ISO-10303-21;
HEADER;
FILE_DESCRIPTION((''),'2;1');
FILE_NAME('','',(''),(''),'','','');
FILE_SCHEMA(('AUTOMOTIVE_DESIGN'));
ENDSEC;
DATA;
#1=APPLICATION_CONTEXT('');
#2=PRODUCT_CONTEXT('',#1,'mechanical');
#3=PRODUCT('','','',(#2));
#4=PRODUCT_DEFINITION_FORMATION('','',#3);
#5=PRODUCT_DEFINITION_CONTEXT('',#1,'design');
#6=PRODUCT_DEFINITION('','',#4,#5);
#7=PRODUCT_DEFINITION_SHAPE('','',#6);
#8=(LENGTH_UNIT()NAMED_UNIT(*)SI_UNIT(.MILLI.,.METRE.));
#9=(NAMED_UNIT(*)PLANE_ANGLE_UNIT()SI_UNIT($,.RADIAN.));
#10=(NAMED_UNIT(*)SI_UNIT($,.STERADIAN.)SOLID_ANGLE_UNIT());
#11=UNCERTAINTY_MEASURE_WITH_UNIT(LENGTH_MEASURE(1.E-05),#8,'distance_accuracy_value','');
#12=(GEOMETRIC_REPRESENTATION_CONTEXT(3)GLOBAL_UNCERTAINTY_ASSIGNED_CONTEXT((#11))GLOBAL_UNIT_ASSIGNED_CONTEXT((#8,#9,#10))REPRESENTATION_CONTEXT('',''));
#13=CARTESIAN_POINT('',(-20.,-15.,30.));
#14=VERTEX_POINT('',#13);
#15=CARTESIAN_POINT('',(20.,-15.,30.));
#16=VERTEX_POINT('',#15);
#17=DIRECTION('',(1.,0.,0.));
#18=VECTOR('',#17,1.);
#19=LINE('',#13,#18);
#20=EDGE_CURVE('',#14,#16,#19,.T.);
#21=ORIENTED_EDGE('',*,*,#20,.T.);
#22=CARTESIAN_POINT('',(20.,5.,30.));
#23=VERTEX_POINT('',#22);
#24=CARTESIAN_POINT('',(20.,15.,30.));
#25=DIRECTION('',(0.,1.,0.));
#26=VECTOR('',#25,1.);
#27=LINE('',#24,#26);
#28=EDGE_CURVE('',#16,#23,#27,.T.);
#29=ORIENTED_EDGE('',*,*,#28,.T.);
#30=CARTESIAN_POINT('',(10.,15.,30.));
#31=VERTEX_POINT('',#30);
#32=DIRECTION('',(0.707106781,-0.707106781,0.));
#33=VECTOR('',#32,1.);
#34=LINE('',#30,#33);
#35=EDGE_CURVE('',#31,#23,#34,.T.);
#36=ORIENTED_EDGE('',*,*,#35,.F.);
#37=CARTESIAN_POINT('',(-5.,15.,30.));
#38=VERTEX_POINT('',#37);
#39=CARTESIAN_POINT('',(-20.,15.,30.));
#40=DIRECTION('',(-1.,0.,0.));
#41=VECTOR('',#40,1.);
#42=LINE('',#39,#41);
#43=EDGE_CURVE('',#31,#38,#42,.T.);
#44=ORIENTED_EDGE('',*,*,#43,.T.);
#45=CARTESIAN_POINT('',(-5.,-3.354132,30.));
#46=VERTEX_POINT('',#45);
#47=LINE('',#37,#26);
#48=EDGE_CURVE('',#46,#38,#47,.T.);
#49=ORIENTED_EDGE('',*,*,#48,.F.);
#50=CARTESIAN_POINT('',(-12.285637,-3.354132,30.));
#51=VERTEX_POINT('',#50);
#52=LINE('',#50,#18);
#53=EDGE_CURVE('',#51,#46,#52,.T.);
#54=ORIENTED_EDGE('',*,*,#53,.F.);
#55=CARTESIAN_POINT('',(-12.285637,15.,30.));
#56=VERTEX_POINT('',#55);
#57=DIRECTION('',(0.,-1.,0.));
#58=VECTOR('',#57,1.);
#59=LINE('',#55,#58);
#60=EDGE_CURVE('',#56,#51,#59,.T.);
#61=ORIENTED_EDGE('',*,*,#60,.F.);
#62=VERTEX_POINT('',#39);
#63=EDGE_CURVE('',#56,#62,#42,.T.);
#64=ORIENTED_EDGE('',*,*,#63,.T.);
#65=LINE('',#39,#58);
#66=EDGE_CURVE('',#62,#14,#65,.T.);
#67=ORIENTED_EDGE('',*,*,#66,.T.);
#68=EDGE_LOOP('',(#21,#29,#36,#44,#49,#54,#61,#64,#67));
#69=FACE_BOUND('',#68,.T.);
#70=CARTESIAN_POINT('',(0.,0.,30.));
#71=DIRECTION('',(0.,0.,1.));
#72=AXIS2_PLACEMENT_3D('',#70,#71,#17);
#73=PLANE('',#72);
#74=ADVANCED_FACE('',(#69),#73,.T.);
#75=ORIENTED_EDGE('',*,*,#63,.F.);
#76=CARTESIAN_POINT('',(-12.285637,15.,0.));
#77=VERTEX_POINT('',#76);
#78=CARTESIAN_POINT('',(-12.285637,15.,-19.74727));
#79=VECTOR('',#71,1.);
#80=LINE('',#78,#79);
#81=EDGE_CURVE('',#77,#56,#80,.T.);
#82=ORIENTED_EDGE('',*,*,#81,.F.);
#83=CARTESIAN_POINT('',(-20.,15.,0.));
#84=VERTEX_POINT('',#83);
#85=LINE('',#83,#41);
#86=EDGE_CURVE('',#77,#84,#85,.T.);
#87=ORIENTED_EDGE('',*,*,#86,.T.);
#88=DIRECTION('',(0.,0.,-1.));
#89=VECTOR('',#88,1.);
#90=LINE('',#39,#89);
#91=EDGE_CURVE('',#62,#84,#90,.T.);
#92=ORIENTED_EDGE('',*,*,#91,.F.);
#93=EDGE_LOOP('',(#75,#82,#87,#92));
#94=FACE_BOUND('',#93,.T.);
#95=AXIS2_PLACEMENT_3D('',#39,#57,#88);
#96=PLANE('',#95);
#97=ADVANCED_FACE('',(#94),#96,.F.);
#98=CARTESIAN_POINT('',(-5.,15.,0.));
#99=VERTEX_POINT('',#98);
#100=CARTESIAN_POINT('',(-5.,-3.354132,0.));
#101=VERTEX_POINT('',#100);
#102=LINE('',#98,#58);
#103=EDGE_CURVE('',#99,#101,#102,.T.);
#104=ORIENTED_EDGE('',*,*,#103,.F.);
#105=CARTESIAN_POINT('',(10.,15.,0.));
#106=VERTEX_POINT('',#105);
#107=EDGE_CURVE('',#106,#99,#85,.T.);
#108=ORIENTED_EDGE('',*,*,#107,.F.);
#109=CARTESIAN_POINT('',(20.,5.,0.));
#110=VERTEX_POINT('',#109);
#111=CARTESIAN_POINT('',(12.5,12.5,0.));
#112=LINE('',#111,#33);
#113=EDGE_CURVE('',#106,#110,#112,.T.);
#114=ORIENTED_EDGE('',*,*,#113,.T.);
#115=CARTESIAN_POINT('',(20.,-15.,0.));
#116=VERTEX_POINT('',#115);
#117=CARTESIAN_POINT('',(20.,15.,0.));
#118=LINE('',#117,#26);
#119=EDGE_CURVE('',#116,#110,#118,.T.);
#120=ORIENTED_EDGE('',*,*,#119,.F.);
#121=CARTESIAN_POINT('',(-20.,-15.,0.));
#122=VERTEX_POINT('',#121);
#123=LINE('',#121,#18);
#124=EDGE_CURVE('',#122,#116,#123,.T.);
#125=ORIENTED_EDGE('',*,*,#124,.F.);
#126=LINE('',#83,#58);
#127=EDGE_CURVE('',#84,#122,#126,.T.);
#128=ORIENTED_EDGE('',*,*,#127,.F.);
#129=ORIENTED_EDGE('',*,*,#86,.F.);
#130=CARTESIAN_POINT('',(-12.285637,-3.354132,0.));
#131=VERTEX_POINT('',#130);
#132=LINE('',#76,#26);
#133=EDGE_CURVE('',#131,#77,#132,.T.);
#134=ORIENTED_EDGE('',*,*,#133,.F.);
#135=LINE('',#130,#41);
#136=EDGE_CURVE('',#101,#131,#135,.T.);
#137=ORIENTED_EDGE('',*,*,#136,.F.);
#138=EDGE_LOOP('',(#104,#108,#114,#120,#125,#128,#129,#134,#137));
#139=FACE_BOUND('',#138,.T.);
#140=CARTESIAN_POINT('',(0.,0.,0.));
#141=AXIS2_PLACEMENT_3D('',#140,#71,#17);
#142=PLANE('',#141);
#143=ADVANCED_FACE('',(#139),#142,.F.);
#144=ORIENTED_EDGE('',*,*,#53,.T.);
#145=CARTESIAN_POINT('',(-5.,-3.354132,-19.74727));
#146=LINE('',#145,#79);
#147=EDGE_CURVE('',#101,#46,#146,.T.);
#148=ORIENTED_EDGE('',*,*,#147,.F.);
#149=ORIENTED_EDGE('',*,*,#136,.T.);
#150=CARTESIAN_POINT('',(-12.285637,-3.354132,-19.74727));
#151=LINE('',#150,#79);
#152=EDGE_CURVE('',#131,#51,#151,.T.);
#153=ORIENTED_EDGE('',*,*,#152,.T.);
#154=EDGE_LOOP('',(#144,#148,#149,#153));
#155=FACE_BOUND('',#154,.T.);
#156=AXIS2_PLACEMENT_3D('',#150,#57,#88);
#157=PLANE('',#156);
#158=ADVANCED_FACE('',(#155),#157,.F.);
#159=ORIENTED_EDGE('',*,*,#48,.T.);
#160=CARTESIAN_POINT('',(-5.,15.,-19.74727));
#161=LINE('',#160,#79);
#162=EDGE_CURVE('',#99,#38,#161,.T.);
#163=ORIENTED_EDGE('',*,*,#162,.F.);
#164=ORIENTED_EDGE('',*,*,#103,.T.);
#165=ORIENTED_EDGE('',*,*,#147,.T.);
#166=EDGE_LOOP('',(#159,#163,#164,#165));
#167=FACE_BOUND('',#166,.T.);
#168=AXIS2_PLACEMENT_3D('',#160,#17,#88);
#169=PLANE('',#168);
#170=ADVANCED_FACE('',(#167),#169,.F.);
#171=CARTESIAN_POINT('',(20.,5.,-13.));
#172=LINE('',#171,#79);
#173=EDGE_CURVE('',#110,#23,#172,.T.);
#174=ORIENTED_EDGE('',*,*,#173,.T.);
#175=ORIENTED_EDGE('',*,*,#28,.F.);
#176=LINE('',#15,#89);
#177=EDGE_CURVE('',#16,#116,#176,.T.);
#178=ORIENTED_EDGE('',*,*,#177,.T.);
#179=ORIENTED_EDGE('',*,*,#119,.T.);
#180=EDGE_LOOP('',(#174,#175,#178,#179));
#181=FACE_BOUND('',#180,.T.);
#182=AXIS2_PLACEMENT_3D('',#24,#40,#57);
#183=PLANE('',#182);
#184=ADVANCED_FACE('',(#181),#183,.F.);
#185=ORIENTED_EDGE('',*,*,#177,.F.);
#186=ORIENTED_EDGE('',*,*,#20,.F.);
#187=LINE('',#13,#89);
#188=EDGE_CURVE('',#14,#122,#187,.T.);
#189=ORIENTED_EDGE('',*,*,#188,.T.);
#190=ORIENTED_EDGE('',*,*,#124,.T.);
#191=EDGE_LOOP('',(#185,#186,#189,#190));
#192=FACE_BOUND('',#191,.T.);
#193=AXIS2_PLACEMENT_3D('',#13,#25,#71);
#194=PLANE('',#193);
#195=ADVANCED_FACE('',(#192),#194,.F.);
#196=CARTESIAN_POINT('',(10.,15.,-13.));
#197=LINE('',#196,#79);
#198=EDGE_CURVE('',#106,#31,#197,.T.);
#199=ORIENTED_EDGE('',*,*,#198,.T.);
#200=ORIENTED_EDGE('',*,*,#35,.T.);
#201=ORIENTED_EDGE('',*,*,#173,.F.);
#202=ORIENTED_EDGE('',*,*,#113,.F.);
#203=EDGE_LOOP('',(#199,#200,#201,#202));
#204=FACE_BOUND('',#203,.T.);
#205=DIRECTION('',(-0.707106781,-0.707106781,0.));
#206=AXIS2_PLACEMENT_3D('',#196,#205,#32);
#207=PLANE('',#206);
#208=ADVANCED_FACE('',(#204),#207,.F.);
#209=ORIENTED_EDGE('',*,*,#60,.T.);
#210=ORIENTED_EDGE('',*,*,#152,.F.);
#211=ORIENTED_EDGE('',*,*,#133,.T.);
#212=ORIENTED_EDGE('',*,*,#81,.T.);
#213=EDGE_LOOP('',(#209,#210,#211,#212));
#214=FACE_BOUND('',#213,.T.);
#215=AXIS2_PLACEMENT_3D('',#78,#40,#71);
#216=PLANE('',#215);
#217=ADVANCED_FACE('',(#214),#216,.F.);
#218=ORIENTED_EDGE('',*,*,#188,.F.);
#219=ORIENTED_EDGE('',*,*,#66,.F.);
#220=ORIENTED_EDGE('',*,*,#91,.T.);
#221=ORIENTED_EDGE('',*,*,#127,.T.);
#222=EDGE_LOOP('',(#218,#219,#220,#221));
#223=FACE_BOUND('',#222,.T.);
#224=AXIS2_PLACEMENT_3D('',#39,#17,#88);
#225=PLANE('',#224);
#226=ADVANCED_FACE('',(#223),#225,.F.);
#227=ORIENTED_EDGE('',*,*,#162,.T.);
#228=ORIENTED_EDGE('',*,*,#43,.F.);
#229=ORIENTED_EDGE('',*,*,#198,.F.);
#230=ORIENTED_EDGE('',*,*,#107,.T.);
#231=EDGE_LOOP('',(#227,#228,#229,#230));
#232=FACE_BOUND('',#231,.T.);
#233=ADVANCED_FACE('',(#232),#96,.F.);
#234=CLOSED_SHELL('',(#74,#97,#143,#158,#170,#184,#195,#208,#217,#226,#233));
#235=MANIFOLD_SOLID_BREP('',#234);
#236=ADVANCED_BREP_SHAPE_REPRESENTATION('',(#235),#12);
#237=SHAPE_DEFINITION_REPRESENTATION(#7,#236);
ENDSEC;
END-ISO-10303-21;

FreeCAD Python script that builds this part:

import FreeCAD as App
import Part
import Sketcher

V = App.Vector

doc = App.newDocument("Part")
params = doc.addObject("Spreadsheet::Sheet", "Params")
for row, (alias, value) in enumerate([
    ("sketch1_width", "40 mm"),
    ("sketch1_height", "30 mm"),
    ("pad1_length", "30 mm"),
    ("sketch2_width", "10 mm"),
    ("pocket1_length", "43 mm"),
    ("pocket2_length", "30 mm"),
], start=1):
    params.set(f"A{row}", alias)
    params.set(f"B{row}", "=" + value)
    params.setAlias(f"B{row}", alias)

body = doc.addObject("PartDesign::Body", "Body")

sketch1 = body.newObject("Sketcher::SketchObject", "Sketch")
sketch1.AttachmentSupport = (doc.getObject("XY_Plane"), [""])
sketch1.MapMode = "FlatFace"
sketch1.addGeometry([
    Part.LineSegment(V(-20, 15, 0), V(-20, -15, 0)),
    Part.LineSegment(V(-20, -15, 0), V(20, -15, 0)),
    Part.LineSegment(V(20, -15, 0), V(20, 15, 0)),
    Part.LineSegment(V(20, 15, 0), V(-20, 15, 0)),
], False)
sketch1.addConstraint([
    Sketcher.Constraint("Coincident", 0, 2, 1, 1),
    Sketcher.Constraint("Coincident", 1, 2, 2, 1),
    Sketcher.Constraint("Coincident", 2, 2, 3, 1),
    Sketcher.Constraint("Coincident", 3, 2, 0, 1),
    Sketcher.Constraint("Vertical", 0),
    Sketcher.Constraint("Horizontal", 1),
    Sketcher.Constraint("Vertical", 2),
    Sketcher.Constraint("Horizontal", 3),
    Sketcher.Constraint("Symmetric", 0, 2, 2, 2, -1, 1),
    Sketcher.Constraint("DistanceX", 1, 1, 1, 2, 40.0),
    Sketcher.Constraint("DistanceY", 0, 2, 0, 1, 30.0),
])
sketch1.setExpression("Constraints[9]", "Params.sketch1_width")
sketch1.setExpression("Constraints[10]", "Params.sketch1_height")
pad1 = body.newObject("PartDesign::Pad", "Pad")
pad1.Profile = sketch1
pad1.setExpression("Length", "Params.pad1_length")

sketch2 = body.newObject("Sketcher::SketchObject", "Sketch001")
sketch2.AttachmentSupport = (doc.getObject("XY_Plane"), [""])
sketch2.MapMode = "FlatFace"
sketch2.AttachmentOffset = App.Placement(V(0, 0, 30), App.Rotation())
sketch2.addGeometry([
    Part.LineSegment(V(10, 15, 0), V(20, 5, 0)),
    Part.LineSegment(V(20, 5, 0), V(20, 15, 0)),
    Part.LineSegment(V(20, 15, 0), V(10, 15, 0)),
], False)
sketch2.addConstraint([
    Sketcher.Constraint("Coincident", 0, 2, 1, 1),
    Sketcher.Constraint("Coincident", 1, 2, 2, 1),
    Sketcher.Constraint("Coincident", 2, 2, 0, 1),
    Sketcher.Constraint("Vertical", 1),
    Sketcher.Constraint("Horizontal", 2),
    Sketcher.Constraint("Equal", 2, 1),
    Sketcher.Constraint("DistanceX", 2, 2, 2, 1, 10.0),
    Sketcher.Constraint("DistanceX", -1, 1, 0, 2, 20.0),
    Sketcher.Constraint("DistanceY", -1, 1, 0, 2, 5.0),
])
sketch2.setExpression("Constraints[6]", "Params.sketch2_width")
pocket1 = body.newObject("PartDesign::Pocket", "Pocket")
pocket1.Profile = sketch2
pocket1.setExpression("Length", "Params.pocket1_length")

sketch3 = body.newObject("Sketcher::SketchObject", "Sketch002")
sketch3.AttachmentSupport = (doc.getObject("XY_Plane"), [""])
sketch3.MapMode = "FlatFace"
sketch3.AttachmentOffset = App.Placement(V(0, 0, 30), App.Rotation())
sketch3.addGeometry([
    Part.LineSegment(V(-12.285637, 15, 0), V(-12.285637, -3.354132, 0)),
    Part.LineSegment(V(-12.285637, -3.354132, 0), V(-5, -3.354132, 0)),
    Part.LineSegment(V(-5, -3.354132, 0), V(-5, 15, 0)),
    Part.LineSegment(V(-5, 15, 0), V(-12.285637, 15, 0)),
], False)
sketch3.addConstraint([
    Sketcher.Constraint("Coincident", 0, 2, 1, 1),
    Sketcher.Constraint("Coincident", 1, 2, 2, 1),
    Sketcher.Constraint("Coincident", 2, 2, 3, 1),
    Sketcher.Constraint("Coincident", 3, 2, 0, 1),
    Sketcher.Constraint("Vertical", 0),
    Sketcher.Constraint("Horizontal", 1),
    Sketcher.Constraint("Vertical", 2),
    Sketcher.Constraint("Horizontal", 3),
    Sketcher.Constraint("DistanceX", 1, 2, -1, 1, 5.0),
    Sketcher.Constraint("DistanceY", -1, 1, 2, 2, 15.0),
    Sketcher.Constraint("DistanceX", 1, 1, 1, 2, 7.285637),
    Sketcher.Constraint("DistanceY", 0, 2, 0, 1, 18.354132),
])
pocket2 = body.newObject("PartDesign::Pocket", "Pocket001")
pocket2.Profile = sketch3
pocket2.setExpression("Length", "Params.pocket2_length")

doc.recompute()
